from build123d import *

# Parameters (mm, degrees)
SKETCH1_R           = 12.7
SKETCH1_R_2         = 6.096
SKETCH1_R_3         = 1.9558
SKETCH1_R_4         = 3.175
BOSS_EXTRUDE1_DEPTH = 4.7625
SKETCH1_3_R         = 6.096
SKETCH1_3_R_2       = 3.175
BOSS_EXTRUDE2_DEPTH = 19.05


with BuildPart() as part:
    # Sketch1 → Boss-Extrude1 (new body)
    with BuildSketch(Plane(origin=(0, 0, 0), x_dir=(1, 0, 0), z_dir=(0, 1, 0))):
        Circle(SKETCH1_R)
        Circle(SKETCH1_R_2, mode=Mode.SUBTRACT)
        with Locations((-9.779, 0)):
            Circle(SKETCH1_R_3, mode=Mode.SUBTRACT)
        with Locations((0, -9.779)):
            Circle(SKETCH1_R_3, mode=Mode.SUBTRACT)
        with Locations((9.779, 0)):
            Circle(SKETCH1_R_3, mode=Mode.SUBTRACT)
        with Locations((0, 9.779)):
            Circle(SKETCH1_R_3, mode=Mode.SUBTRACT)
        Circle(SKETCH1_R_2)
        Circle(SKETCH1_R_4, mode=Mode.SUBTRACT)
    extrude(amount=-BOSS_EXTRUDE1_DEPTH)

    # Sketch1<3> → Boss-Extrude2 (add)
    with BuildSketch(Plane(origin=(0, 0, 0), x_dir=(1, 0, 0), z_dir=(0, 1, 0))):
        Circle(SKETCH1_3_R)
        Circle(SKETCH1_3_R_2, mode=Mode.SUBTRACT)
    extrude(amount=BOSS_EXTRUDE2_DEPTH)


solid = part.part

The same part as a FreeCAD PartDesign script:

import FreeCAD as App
import Part
import Sketcher

V = App.Vector
Q = App.Units.Quantity

doc = App.newDocument("Part")
body = doc.addObject("PartDesign::Body", "Body")

# Sketch on XZ plane
sketch1 = doc.addObject("Sketcher::SketchObject", "Sketch")
body.addObject(sketch1)
sketch1.AttachmentSupport = (doc.XZ_Plane, [""])
sketch1.MapMode = "FlatFace"
sketch1.addGeometry([
    Part.Circle(V(0, 0, 0), V(0, 0, 1), 12.7),  # 0
    Part.Circle(V(0, 9.8, 0), V(0, 0, 1), 2),  # 1
    Part.Circle(V(-9.8, 0, 0), V(0, 0, 1), 2),  # 2
    Part.Circle(V(0, 0, 0), V(0, 0, 1), 3.2),  # 3
    Part.Circle(V(9.8, 0, 0), V(0, 0, 1), 2),  # 4
    Part.Circle(V(0, -9.8, 0), V(0, 0, 1), 2),  # 5
], False)
sketch1.addConstraint([
    Sketcher.Constraint("Coincident", 0, 3, -1, 1),
    Sketcher.Constraint("Coincident", 3, 3, -1, 1),
    Sketcher.Constraint("Equal", 1, 2),
    Sketcher.Constraint("Equal", 2, 4),
    Sketcher.Constraint("Equal", 4, 5),
    Sketcher.Constraint("Symmetric", 2, 3, 4, 3, -1, 1),
    Sketcher.Constraint("Symmetric", 1, 3, 5, 3, -1, 1),
    Sketcher.Constraint("PointOnObject", 1, 3, -2),
    Sketcher.Constraint("PointOnObject", 2, 3, -1),
    Sketcher.Constraint("Diameter", 0, Q("1 in")),
    Sketcher.Constraint("Diameter", 3, Q("0.25 in")),
    Sketcher.Constraint("Diameter", 1, Q("0.154 in")),
    Sketcher.Constraint("DistanceX", 2, 3, 4, 3, Q("0.77 in")),
    Sketcher.Constraint("DistanceY", 5, 3, 1, 3, Q("0.77 in")),
])
pad1 = doc.addObject("PartDesign::Pad", "Pad")
body.addObject(pad1)
pad1.Profile = sketch1
pad1.Length = Q("0.1875 in")

# Sketch on XZ plane
sketch2 = doc.addObject("Sketcher::SketchObject", "Sketch001")
body.addObject(sketch2)
sketch2.AttachmentSupport = (doc.XZ_Plane, [""])
sketch2.MapMode = "FlatFace"
sketch2.addGeometry([
    Part.Circle(V(0, 0, 0), V(0, 0, 1), 6.1),
    Part.Circle(V(0, 0, 0), V(0, 0, 1), 3.2),
], False)
sketch2.addConstraint([
    Sketcher.Constraint("Coincident", 0, 3, -1, 1),
    Sketcher.Constraint("Coincident", 1, 3, -1, 1),
    Sketcher.Constraint("Diameter", 0, Q("0.48 in")),
    Sketcher.Constraint("Diameter", 1, Q("0.25 in")),
])
pad2 = doc.addObject("PartDesign::Pad", "Pad001")
body.addObject(pad2)
pad2.Profile = sketch2
pad2.Length = Q("0.75 in")
pad2.Reversed = True

doc.recompute()
